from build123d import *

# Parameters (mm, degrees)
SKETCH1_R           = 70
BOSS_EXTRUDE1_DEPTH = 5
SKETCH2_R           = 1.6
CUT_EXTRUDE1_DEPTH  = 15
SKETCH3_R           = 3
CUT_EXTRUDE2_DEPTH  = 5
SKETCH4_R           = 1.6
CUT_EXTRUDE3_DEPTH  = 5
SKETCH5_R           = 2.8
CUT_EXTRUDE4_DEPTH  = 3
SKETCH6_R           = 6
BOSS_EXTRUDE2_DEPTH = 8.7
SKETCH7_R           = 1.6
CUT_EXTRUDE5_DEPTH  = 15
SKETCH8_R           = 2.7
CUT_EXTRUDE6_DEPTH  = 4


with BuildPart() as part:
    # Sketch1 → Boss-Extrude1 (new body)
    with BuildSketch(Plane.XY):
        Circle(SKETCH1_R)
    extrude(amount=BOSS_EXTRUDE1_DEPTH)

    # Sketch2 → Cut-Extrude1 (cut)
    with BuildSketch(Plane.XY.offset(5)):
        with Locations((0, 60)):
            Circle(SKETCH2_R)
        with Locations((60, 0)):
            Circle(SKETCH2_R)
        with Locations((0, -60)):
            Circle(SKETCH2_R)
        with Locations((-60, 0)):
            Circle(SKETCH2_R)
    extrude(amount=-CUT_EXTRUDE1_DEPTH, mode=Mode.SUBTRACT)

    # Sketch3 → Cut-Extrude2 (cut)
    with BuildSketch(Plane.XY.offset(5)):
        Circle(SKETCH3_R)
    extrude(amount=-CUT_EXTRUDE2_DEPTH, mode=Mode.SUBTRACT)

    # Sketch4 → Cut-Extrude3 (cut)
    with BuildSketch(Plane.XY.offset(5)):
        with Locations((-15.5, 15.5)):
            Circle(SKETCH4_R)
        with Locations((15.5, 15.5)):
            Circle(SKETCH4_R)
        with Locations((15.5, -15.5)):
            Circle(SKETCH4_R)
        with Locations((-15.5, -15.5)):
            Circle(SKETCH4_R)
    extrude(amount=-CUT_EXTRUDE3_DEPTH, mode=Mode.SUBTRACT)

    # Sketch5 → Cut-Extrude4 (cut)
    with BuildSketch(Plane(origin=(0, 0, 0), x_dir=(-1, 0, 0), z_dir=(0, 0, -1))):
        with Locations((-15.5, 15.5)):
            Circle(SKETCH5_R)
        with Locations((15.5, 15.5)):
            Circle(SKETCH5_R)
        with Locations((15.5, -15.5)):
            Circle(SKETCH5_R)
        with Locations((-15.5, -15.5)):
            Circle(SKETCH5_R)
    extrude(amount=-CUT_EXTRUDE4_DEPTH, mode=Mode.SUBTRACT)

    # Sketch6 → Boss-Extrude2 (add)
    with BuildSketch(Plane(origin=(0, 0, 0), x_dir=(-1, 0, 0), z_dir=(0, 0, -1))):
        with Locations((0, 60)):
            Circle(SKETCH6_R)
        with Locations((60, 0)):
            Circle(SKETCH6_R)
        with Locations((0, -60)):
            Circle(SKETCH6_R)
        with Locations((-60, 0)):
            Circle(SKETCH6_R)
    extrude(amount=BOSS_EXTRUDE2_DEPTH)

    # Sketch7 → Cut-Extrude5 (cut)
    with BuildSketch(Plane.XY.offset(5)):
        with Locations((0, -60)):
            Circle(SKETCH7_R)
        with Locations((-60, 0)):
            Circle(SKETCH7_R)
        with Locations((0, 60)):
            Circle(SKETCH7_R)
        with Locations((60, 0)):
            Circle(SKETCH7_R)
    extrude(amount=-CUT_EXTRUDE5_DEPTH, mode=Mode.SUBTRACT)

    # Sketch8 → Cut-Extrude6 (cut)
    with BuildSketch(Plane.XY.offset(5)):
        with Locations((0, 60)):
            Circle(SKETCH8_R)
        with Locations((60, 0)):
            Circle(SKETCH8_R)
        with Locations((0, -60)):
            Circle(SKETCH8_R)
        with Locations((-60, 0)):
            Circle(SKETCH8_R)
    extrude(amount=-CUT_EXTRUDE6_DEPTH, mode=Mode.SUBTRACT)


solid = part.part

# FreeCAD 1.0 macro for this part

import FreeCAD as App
import Part
import Sketcher

V = App.Vector

doc = App.newDocument("Part")
body = doc.addObject("PartDesign::Body", "Body")

# Sketch on XY plane
sketch1 = body.newObject("Sketcher::SketchObject", "Sketch")
sketch1.AttachmentSupport = (doc.getObject("XY_Plane"), [""])
sketch1.MapMode = "FlatFace"
sketch1.addGeometry(Part.Circle(V(0, 0, 0), V(0, 0, 1), 70), False)
sketch1.addConstraint([
    Sketcher.Constraint("Coincident", 0, 3, -1, 1),
    Sketcher.Constraint("Diameter", 0, 140.0),
])
pad1 = body.newObject("PartDesign::Pad", "Pad")
pad1.Profile = sketch1
pad1.Length = 5

# Sketch on XY plane
sketch2 = body.newObject("Sketcher::SketchObject", "Sketch001")
sketch2.AttachmentSupport = (doc.getObject("XY_Plane"), [""])
sketch2.MapMode = "FlatFace"
sketch2.AttachmentOffset = App.Placement(V(0, 0, 5), App.Rotation())
sketch2.addGeometry([
    Part.Circle(V(0, 60, 0), V(0, 0, 1), 1.6),
    Part.Circle(V(60, 0, 0), V(0, 0, 1), 1.6),
    Part.Circle(V(0, -60, 0), V(0, 0, 1), 1.6),
    Part.Circle(V(-60, 0, 0), V(0, 0, 1), 1.6),
], False)
sketch2.addConstraint([
    Sketcher.Constraint("Equal", 0, 1),
    Sketcher.Constraint("Equal", 1, 2),
    Sketcher.Constraint("Equal", 2, 3),
    Sketcher.Constraint("Symmetric", 0, 3, 2, 3, -1, 1),
    Sketcher.Constraint("Symmetric", 1, 3, 3, 3, -1, 1),
    Sketcher.Constraint("PointOnObject", 0, 3, -2),
    Sketcher.Constraint("PointOnObject", 1, 3, -1),
    Sketcher.Constraint("Diameter", 0, 3.2),
    Sketcher.Constraint("DistanceY", -1, 1, 0, 3, 60.0),
    Sketcher.Constraint("DistanceX", -1, 1, 1, 3, 60.0),
])
pocket1 = body.newObject("PartDesign::Pocket", "Pocket")
pocket1.Profile = sketch2
pocket1.Length = 15

# Sketch on XY plane
sketch3 = body.newObject("Sketcher::SketchObject", "Sketch002")
sketch3.AttachmentSupport = (doc.getObject("XY_Plane"), [""])
sketch3.MapMode = "FlatFace"
sketch3.AttachmentOffset = App.Placement(V(0, 0, 5), App.Rotation())
sketch3.addGeometry(Part.Circle(V(0, 0, 0), V(0, 0, 1), 3), False)
sketch3.addConstraint([
    Sketcher.Constraint("Coincident", 0, 3, -1, 1),
    Sketcher.Constraint("Diameter", 0, 6.0),
])
pocket2 = body.newObject("PartDesign::Pocket", "Pocket001")
pocket2.Profile = sketch3
pocket2.Length = 5

# Sketch on XY plane
sketch4 = body.newObject("Sketcher::SketchObject", "Sketch003")
sketch4.AttachmentSupport = (doc.getObject("XY_Plane"), [""])
sketch4.MapMode = "FlatFace"
sketch4.AttachmentOffset = App.Placement(V(0, 0, 5), App.Rotation())
sketch4.addGeometry([
    Part.Circle(V(-15.5, 15.5, 0), V(0, 0, 1), 1.6),
    Part.Circle(V(15.5, 15.5, 0), V(0, 0, 1), 1.6),
    Part.Circle(V(15.5, -15.5, 0), V(0, 0, 1), 1.6),
    Part.Circle(V(-15.5, -15.5, 0), V(0, 0, 1), 1.6),
], False)
sketch4.addConstraint([
    Sketcher.Constraint("Equal", 0, 1),
    Sketcher.Constraint("Equal", 1, 2),
    Sketcher.Constraint("Equal", 2, 3),
    Sketcher.Constraint("Symmetric", 0, 3, 2, 3, -1, 1),
    Sketcher.Constraint("Symmetric", 1, 3, 3, 3, -1, 1),
    Sketcher.Constraint("Symmetric", 0, 3, 1, 3, -2),
    Sketcher.Constraint("Diameter", 0, 3.2),
    Sketcher.Constraint("DistanceX", 0, 3, 1, 3, 31.0),
    Sketcher.Constraint("DistanceY", 2, 3, 1, 3, 31.0),
])
pocket3 = body.newObject("PartDesign::Pocket", "Pocket002")
pocket3.Profile = sketch4
pocket3.Length = 5

# Sketch on XY plane
sketch5 = body.newObject("Sketcher::SketchObject", "Sketch004")
sketch5.AttachmentSupport = (doc.getObject("XY_Plane"), [""])
sketch5.MapMode = "FlatFace"
sketch5.addGeometry([
    Part.Circle(V(15.5, 15.5, 0), V(0, 0, 1), 2.8),
    Part.Circle(V(-15.5, 15.5, 0), V(0, 0, 1), 2.8),
    Part.Circle(V(-15.5, -15.5, 0), V(0, 0, 1), 2.8),
    Part.Circle(V(15.5, -15.5, 0), V(0, 0, 1), 2.8),
], False)
sketch5.addConstraint([
    Sketcher.Constraint("Equal", 0, 1),
    Sketcher.Constraint("Equal", 1, 2),
    Sketcher.Constraint("Equal", 2, 3),
    Sketcher.Constraint("Symmetric", 0, 3, 2, 3, -1, 1),
    Sketcher.Constraint("Symmetric", 1, 3, 3, 3, -1, 1),
    Sketcher.Constraint("Symmetric", 0, 3, 1, 3, -2),
    Sketcher.Constraint("Diameter", 0, 5.6),
    Sketcher.Constraint("DistanceX", 1, 3, 0, 3, 31.0),
    Sketcher.Constraint("DistanceY", 2, 3, 1, 3, 31.0),
])
pocket4 = body.newObject("PartDesign::Pocket", "Pocket003")
pocket4.Profile = sketch5
pocket4.Length = 3
pocket4.Reversed = True

# Sketch on XY plane
sketch6 = body.newObject("Sketcher::SketchObject", "Sketch005")
sketch6.AttachmentSupport = (doc.getObject("XY_Plane"), [""])
sketch6.MapMode = "FlatFace"
sketch6.addGeometry([
    Part.Circle(V(0, 60, 0), V(0, 0, 1), 6),
    Part.Circle(V(-60, 0, 0), V(0, 0, 1), 6),
    Part.Circle(V(0, -60, 0), V(0, 0, 1), 6),
    Part.Circle(V(60, 0, 0), V(0, 0, 1), 6),
], False)
sketch6.addConstraint([
    Sketcher.Constraint("Equal", 0, 1),
    Sketcher.Constraint("Equal", 1, 2),
    Sketcher.Constraint("Equal", 2, 3),
    Sketcher.Constraint("Symmetric", 0, 3, 2, 3, -1, 1),
    Sketcher.Constraint("Symmetric", 1, 3, 3, 3, -1, 1),
    Sketcher.Constraint("PointOnObject", 0, 3, -2),
    Sketcher.Constraint("PointOnObject", 1, 3, -1),
    Sketcher.Constraint("Diameter", 0, 12.0),
    Sketcher.Constraint("DistanceY", -1, 1, 0, 3, 60.0),
    Sketcher.Constraint("DistanceX", 1, 3, -1, 1, 60.0),
])
pad2 = body.newObject("PartDesign::Pad", "Pad001")
pad2.Profile = sketch6
pad2.Length = 8.7
pad2.Reversed = True

# Sketch on XY plane
sketch7 = body.newObject("Sketcher::SketchObject", "Sketch006")
sketch7.AttachmentSupport = (doc.getObject("XY_Plane"), [""])
sketch7.MapMode = "FlatFace"
sketch7.AttachmentOffset = App.Placement(V(0, 0, 5), App.Rotation())
sketch7.addGeometry([
    Part.Circle(V(0, -60, 0), V(0, 0, 1), 1.6),
    Part.Circle(V(-60, 0, 0), V(0, 0, 1), 1.6),
    Part.Circle(V(0, 60, 0), V(0, 0, 1), 1.6),
    Part.Circle(V(60, 0, 0), V(0, 0, 1), 1.6),
], False)
sketch7.addConstraint([
    Sketcher.Constraint("Equal", 0, 1),
    Sketcher.Constraint("Equal", 1, 2),
    Sketcher.Constraint("Equal", 2, 3),
    Sketcher.Constraint("Symmetric", 0, 3, 2, 3, -1, 1),
    Sketcher.Constraint("Symmetric", 1, 3, 3, 3, -1, 1),
    Sketcher.Constraint("PointOnObject", 0, 3, -2),
    Sketcher.Constraint("PointOnObject", 1, 3, -1),
    Sketcher.Constraint("Diameter", 0, 3.2),
    Sketcher.Constraint("DistanceY", 0, 3, -1, 1, 60.0),
    Sketcher.Constraint("DistanceX", 1, 3, -1, 1, 60.0),
])
pocket5 = body.newObject("PartDesign::Pocket", "Pocket004")
pocket5.Profile = sketch7
pocket5.Length = 15

# Sketch on XY plane
sketch8 = body.newObject("Sketcher::SketchObject", "Sketch007")
sketch8.AttachmentSupport = (doc.getObject("XY_Plane"), [""])
sketch8.MapMode = "FlatFace"
sketch8.AttachmentOffset = App.Placement(V(0, 0, 5), App.Rotation())
sketch8.addGeometry([
    Part.Circle(V(0, 60, 0), V(0, 0, 1), 2.7),
    Part.Circle(V(60, 0, 0), V(0, 0, 1), 2.7),
    Part.Circle(V(0, -60, 0), V(0, 0, 1), 2.7),
    Part.Circle(V(-60, 0, 0), V(0, 0, 1), 2.7),
], False)
sketch8.addConstraint([
    Sketcher.Constraint("Equal", 0, 1),
    Sketcher.Constraint("Equal", 1, 2),
    Sketcher.Constraint("Equal", 2, 3),
    Sketcher.Constraint("Symmetric", 0, 3, 2, 3, -1, 1),
    Sketcher.Constraint("Symmetric", 1, 3, 3, 3, -1, 1),
    Sketcher.Constraint("PointOnObject", 0, 3, -2),
    Sketcher.Constraint("PointOnObject", 1, 3, -1),
    Sketcher.Constraint("Diameter", 0, 5.4),
    Sketcher.Constraint("DistanceY", -1, 1, 0, 3, 60.0),
    Sketcher.Constraint("DistanceX", -1, 1, 1, 3, 60.0),
])
pocket6 = body.newObject("PartDesign::Pocket", "Pocket005")
pocket6.Profile = sketch8
pocket6.Length = 4

doc.recompute()
